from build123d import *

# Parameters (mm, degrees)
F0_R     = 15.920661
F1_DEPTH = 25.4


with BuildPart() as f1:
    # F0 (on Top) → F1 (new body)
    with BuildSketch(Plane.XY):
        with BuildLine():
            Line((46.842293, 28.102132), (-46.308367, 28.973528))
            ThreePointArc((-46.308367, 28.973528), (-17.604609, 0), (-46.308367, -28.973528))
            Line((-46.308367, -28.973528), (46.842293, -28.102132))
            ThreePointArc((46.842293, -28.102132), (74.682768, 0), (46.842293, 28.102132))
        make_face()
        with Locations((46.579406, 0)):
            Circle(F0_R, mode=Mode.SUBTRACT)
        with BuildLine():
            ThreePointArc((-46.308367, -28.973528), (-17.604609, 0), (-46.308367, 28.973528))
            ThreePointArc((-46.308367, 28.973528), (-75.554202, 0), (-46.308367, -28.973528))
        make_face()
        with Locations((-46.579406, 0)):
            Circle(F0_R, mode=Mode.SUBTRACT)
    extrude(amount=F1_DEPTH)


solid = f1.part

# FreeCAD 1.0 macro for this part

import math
import FreeCAD as App
import Part
import Sketcher
from FreeCAD import Vector
Q = App.Units.Quantity

doc = App.newDocument("Part")
body = doc.addObject("PartDesign::Body", "Body")

# Sketch on XY plane
sketch1 = body.newObject("Sketcher::SketchObject", "Sketch")
sketch1.AttachmentSupport = (doc.getObject("XY_Plane"), [""])
sketch1.MapMode = "FlatFace"
sketch1.addGeometry([
    Part.LineSegment(Vector(47, 28, 0), Vector(-46, 29, 0)),  # 0
    Part.ArcOfCircle(Part.Circle(Vector(-47, 0, 0), Vector(0, 0, 1), 29), math.radians(89), math.radians(271)),  # 1
    Part.LineSegment(Vector(-46, -29, 0), Vector(47, -28, 0)),  # 2
    Part.ArcOfCircle(Part.Circle(Vector(47, 0, 0), Vector(0, 0, 1), 28), math.radians(-89), math.radians(89)),  # 3
    Part.Circle(Vector(-47, 0, 0), Vector(0, 0, 1), 16),  # 4
    Part.Circle(Vector(47, 0, 0), Vector(0, 0, 1), 16),  # 5
], False)
sketch1.addConstraint([
    Sketcher.Constraint("Tangent", 0, 2, 1, 1),
    Sketcher.Constraint("Tangent", 1, 2, 2, 1),
    Sketcher.Constraint("Tangent", 2, 2, 3, 1),
    Sketcher.Constraint("Tangent", 3, 2, 0, 1),
    Sketcher.Constraint("Coincident", 4, 3, 1, 3),
    Sketcher.Constraint("Coincident", 5, 3, 3, 3),
    Sketcher.Constraint("Equal", 4, 5),
    Sketcher.Constraint("Symmetric", 1, 3, 3, 3, -1, 1),
    Sketcher.Constraint("PointOnObject", 1, 3, -1),
    Sketcher.Constraint("Radius", 3, 28.103362),
    Sketcher.Constraint("Diameter", 4, 31.841322),
    Sketcher.Constraint("Radius", 1, 28.974796),
    Sketcher.Constraint("DistanceX", 4, 3, 2, 2, 93.421699),
])
pad1 = body.newObject("PartDesign::Pad", "Pad")
pad1.Profile = sketch1
pad1.Length = Q("1 in")

doc.recompute()
